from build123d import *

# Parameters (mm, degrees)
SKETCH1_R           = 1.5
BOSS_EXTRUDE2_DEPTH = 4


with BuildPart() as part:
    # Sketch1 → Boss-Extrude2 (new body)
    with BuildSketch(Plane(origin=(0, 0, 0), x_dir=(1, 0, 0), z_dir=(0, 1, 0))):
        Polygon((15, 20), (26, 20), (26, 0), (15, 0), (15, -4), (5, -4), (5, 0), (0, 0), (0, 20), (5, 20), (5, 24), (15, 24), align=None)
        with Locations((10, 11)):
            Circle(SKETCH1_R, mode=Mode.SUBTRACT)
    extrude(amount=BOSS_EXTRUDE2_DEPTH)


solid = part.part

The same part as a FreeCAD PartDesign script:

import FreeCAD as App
import Part
import Sketcher
Q = App.Units.Quantity


def add_polygon(sketch, points):
    """Adds a closed chain of lines whose ends are joined by coincident constraints."""
    first, n = sketch.GeometryCount, len(points)
    for a, b in zip(points, points[1:] + points[:1]):
        sketch.addGeometry(Part.LineSegment(App.Vector(*a, 0), App.Vector(*b, 0)), False)
    for i in range(n):
        sketch.addConstraint(Sketcher.Constraint("Coincident", first + i, 2, first + (i + 1) % n, 1))

doc = App.newDocument("Part")
body = doc.addObject("PartDesign::Body", "Body")

# Sketch on XZ plane
sketch1 = body.newObject("Sketcher::SketchObject", "Sketch")
sketch1.AttachmentSupport = (doc.getObject("XZ_Plane"), [""])
sketch1.MapMode = "FlatFace"
add_polygon(sketch1, [(26, -20), (15, -20), (15, -24), (5, -24), (5, -20), (0, -20), (0, 0), (5, 0), (5, 4), (15, 4), (15, 0), (26, 0)])  # lines 0-11
sketch1.addGeometry(Part.Circle(App.Vector(10, -11, 0), App.Vector(0, 0, 1), 1.5), False)  # 12
sketch1.addConstraint(Sketcher.Constraint("Horizontal", 0))
sketch1.addConstraint(Sketcher.Constraint("Vertical", 1))
sketch1.addConstraint(Sketcher.Constraint("Horizontal", 2))
sketch1.addConstraint(Sketcher.Constraint("Vertical", 3))
sketch1.addConstraint(Sketcher.Constraint("Horizontal", 4))
sketch1.addConstraint(Sketcher.Constraint("Vertical", 5))
sketch1.addConstraint(Sketcher.Constraint("Horizontal", 6))
sketch1.addConstraint(Sketcher.Constraint("Vertical", 7))
sketch1.addConstraint(Sketcher.Constraint("Horizontal", 8))
sketch1.addConstraint(Sketcher.Constraint("Vertical", 9))
sketch1.addConstraint(Sketcher.Constraint("Horizontal", 10))
sketch1.addConstraint(Sketcher.Constraint("Vertical", 11))
sketch1.addConstraint(Sketcher.Constraint("Coincident", 5, 2, -1, 1))
sketch1.addConstraint(Sketcher.Constraint("PointOnObject", 9, 2, -1))
sketch1.addConstraint(Sketcher.Constraint("Horizontal", 0, 2, 3, 2))
sketch1.addConstraint(Sketcher.Constraint("Vertical", 3, 2, 6, 2))
sketch1.addConstraint(Sketcher.Constraint("Vertical", 1, 2, 8, 2))
sketch1.addConstraint(Sketcher.Constraint("Equal", 3, 7))
sketch1.addConstraint(Sketcher.Constraint("Diameter", 12, Q("3 mm")))
sketch1.addConstraint(Sketcher.Constraint("DistanceX", 0, 2, 0, 1, Q("11 mm")))
sketch1.addConstraint(Sketcher.Constraint("DistanceX", 2, 2, 2, 1, Q("10 mm")))
sketch1.addConstraint(Sketcher.Constraint("DistanceX", 4, 2, 4, 1, Q("5 mm")))
sketch1.addConstraint(Sketcher.Constraint("DistanceY", 1, 2, 1, 1, Q("4 mm")))
sketch1.addConstraint(Sketcher.Constraint("DistanceY", 5, 1, 5, 2, Q("20 mm")))
sketch1.addConstraint(Sketcher.Constraint("DistanceX", -1, 1, 12, 3, Q("10 mm")))
sketch1.addConstraint(Sketcher.Constraint("DistanceY", 12, 3, -1, 1, Q("11 mm")))
pad1 = body.newObject("PartDesign::Pad", "Pad")
pad1.Profile = sketch1
pad1.Length = 4
pad1.Reversed = True

doc.recompute()
